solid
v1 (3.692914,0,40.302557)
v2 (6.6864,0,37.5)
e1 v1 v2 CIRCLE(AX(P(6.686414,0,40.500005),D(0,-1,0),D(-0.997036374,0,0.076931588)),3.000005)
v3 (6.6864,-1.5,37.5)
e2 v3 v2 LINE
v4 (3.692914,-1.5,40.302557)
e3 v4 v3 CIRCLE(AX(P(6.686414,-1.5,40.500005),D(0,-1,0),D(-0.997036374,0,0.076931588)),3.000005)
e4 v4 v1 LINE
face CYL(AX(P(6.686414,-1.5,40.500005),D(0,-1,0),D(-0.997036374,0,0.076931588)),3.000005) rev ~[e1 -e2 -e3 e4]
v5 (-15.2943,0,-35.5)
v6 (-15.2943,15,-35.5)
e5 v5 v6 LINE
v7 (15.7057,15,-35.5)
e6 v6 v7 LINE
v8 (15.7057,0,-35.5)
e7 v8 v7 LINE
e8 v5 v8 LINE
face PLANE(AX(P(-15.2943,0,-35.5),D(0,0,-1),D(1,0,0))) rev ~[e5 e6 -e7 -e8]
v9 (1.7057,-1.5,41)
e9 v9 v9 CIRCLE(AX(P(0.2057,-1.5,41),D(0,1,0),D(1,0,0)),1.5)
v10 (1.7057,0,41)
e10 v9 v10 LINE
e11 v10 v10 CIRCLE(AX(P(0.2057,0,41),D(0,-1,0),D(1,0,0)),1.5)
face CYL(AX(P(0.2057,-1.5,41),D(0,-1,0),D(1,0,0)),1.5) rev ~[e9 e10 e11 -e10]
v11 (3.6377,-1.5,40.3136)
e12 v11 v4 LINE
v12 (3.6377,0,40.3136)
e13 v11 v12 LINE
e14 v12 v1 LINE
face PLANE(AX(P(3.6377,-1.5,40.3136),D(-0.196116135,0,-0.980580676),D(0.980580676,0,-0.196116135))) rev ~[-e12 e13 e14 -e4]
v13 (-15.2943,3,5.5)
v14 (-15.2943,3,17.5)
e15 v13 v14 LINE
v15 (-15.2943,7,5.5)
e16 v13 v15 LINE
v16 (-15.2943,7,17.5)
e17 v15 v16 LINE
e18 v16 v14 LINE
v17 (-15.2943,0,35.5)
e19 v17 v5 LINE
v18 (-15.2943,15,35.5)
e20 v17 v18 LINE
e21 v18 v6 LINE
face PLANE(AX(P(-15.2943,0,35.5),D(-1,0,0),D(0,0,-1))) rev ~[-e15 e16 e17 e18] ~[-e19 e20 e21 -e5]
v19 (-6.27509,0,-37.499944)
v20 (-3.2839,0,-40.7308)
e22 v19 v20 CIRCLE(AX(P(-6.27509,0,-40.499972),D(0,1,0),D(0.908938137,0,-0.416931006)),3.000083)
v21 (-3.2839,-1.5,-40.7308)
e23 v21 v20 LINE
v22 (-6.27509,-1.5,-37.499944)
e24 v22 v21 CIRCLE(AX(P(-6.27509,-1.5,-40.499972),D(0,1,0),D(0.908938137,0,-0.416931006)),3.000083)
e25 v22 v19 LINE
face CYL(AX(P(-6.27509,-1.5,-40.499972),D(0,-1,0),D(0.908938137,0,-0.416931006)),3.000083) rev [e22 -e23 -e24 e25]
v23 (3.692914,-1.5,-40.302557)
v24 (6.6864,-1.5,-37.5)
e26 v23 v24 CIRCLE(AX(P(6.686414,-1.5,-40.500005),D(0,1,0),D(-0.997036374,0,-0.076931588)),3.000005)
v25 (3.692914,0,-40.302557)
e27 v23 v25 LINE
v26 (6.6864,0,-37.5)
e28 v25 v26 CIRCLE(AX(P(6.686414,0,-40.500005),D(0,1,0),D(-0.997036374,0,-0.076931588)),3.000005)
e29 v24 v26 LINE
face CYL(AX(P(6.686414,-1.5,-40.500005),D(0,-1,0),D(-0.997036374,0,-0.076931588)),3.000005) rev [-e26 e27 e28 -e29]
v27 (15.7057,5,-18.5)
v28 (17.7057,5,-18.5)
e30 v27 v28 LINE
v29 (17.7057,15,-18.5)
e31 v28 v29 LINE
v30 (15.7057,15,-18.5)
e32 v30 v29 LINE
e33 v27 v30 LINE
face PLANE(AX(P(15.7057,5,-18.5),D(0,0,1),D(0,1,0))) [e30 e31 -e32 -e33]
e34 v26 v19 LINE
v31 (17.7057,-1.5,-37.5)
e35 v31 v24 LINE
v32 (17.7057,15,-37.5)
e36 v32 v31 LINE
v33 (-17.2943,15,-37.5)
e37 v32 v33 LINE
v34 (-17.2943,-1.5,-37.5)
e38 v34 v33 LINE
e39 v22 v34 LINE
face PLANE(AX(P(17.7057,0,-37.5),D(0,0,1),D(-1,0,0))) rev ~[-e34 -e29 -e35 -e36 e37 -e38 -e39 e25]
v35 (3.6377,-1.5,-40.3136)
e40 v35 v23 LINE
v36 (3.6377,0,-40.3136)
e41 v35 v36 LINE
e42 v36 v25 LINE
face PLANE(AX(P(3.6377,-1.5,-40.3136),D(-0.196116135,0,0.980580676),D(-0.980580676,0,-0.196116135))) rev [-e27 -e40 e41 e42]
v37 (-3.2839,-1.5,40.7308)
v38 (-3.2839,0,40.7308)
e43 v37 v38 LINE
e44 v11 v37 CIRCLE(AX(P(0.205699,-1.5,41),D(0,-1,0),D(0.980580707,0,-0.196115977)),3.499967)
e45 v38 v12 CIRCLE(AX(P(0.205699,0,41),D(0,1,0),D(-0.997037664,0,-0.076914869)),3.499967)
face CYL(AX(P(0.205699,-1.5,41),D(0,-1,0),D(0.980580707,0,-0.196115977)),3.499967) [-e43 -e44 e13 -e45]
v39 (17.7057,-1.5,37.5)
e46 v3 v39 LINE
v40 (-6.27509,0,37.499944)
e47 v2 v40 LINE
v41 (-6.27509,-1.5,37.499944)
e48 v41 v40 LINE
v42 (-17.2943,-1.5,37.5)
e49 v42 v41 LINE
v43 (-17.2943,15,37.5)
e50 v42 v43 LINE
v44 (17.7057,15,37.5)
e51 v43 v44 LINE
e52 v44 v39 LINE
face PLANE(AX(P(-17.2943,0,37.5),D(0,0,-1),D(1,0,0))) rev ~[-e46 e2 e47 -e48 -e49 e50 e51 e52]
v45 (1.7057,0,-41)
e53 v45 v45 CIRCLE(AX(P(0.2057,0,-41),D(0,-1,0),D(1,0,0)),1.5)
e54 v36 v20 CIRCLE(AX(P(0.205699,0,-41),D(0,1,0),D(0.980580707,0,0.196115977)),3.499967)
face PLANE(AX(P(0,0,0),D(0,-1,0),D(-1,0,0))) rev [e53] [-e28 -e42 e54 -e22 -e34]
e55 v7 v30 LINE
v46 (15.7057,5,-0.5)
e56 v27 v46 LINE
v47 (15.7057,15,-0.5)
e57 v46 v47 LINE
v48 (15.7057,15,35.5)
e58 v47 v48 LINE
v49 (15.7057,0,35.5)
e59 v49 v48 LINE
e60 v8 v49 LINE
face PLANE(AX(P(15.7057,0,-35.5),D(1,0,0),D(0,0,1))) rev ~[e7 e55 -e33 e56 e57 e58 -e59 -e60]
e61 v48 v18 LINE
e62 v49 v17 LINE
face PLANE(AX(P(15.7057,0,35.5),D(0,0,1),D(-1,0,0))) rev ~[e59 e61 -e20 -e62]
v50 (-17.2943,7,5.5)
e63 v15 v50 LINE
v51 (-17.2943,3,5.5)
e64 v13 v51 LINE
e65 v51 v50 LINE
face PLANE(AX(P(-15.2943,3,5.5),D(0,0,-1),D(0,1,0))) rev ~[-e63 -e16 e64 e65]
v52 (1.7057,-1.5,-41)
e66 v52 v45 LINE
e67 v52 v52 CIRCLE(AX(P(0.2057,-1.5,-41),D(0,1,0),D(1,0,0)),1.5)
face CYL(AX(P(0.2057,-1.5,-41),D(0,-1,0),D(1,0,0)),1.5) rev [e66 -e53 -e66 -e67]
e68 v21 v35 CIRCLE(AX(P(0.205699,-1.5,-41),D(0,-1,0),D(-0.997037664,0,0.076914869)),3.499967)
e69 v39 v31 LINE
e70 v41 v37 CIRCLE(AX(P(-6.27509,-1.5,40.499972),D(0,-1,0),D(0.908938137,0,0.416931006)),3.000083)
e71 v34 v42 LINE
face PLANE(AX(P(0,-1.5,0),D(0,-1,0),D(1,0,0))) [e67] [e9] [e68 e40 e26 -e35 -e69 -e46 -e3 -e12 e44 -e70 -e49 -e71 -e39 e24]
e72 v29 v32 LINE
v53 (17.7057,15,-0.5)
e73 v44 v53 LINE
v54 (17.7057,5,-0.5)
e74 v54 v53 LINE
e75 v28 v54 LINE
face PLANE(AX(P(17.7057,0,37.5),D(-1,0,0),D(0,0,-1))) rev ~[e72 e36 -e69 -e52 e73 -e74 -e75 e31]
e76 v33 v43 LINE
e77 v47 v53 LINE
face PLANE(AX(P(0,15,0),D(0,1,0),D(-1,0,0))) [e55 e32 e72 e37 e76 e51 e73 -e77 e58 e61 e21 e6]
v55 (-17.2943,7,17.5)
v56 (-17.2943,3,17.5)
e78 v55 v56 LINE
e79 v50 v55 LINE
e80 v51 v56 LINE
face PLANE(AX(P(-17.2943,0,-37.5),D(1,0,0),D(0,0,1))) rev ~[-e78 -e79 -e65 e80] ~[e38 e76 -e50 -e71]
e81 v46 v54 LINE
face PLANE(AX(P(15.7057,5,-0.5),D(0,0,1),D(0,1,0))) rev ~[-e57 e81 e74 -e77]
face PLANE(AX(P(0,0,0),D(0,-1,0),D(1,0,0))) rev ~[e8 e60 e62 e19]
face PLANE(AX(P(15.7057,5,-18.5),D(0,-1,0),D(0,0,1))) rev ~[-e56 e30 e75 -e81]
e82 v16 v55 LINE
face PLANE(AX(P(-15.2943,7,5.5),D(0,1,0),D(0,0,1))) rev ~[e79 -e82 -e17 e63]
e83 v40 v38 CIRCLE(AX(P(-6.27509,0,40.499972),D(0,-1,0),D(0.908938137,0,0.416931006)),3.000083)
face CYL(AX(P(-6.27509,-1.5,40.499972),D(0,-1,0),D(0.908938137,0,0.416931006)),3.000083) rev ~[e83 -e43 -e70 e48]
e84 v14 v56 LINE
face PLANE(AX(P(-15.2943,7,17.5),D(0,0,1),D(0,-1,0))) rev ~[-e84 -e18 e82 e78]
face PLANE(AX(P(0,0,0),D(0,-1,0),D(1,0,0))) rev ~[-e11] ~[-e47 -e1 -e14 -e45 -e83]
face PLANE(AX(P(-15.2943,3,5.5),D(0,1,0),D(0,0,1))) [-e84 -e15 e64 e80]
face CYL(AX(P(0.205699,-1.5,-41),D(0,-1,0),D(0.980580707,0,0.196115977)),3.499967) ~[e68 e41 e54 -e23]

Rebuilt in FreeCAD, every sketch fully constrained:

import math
import FreeCAD as App
import Part
import Sketcher
Q = App.Units.Quantity

doc = App.newDocument("Part")
body = doc.addObject("PartDesign::Body", "Body")

# Sketch on XZ plane
sketch1 = body.newObject("Sketcher::SketchObject", "Sketch")
sketch1.AttachmentSupport = (doc.getObject("XZ_Plane"), [""])
sketch1.MapMode = "FlatFace"
sketch1.addGeometry([
    Part.LineSegment(App.Vector(18, -38, 0), App.Vector(-17, -38, 0)),  # 0
    Part.LineSegment(App.Vector(-17, -38, 0), App.Vector(-17, 38, 0)),  # 1
    Part.LineSegment(App.Vector(-17, 38, 0), App.Vector(18, 38, 0)),  # 2
    Part.LineSegment(App.Vector(18, 38, 0), App.Vector(18, -38, 0)),  # 3
    Part.LineSegment(App.Vector(16, 36, 0), App.Vector(-15, 36, 0)),  # 4
    Part.LineSegment(App.Vector(-15, 36, 0), App.Vector(-15, -36, 0)),  # 5
    Part.LineSegment(App.Vector(-15, -36, 0), App.Vector(16, -36, 0)),  # 6
    Part.LineSegment(App.Vector(16, -36, 0), App.Vector(16, 36, 0)),  # 7
], False)
sketch1.addConstraint([
    Sketcher.Constraint("Coincident", 0, 2, 1, 1),
    Sketcher.Constraint("Coincident", 1, 2, 2, 1),
    Sketcher.Constraint("Coincident", 2, 2, 3, 1),
    Sketcher.Constraint("Coincident", 3, 2, 0, 1),
    Sketcher.Constraint("Coincident", 4, 2, 5, 1),
    Sketcher.Constraint("Coincident", 5, 2, 6, 1),
    Sketcher.Constraint("Coincident", 6, 2, 7, 1),
    Sketcher.Constraint("Coincident", 7, 2, 4, 1),
    Sketcher.Constraint("Horizontal", 0),
    Sketcher.Constraint("Vertical", 1),
    Sketcher.Constraint("Horizontal", 2),
    Sketcher.Constraint("Vertical", 3),
    Sketcher.Constraint("Horizontal", 4),
    Sketcher.Constraint("Vertical", 5),
    Sketcher.Constraint("Horizontal", 6),
    Sketcher.Constraint("Vertical", 7),
    Sketcher.Constraint("DistanceX", 1, 2, 4, 2, 2.0),
    Sketcher.Constraint("DistanceY", 4, 2, 1, 2, 2.0),
    Sketcher.Constraint("DistanceY", 0, 2, 5, 2, 2.0),
    Sketcher.Constraint("DistanceX", 6, 2, 3, 2, 2.0),
    Sketcher.Constraint("DistanceX", 0, 2, 0, 1, 35.0),
    Sketcher.Constraint("DistanceY", 1, 1, 1, 2, 75.0),
    Sketcher.Constraint("DistanceY", 0, 2, -1, 1, 37.5),
    Sketcher.Constraint("DistanceX", 0, 2, -1, 1, 17.2943),
])
pad1 = body.newObject("PartDesign::Pad", "Pad")
pad1.Profile = sketch1
pad1.Length = 15
pad1.Reversed = True

# Sketch on XZ plane
sketch2 = body.newObject("Sketcher::SketchObject", "Sketch001")
sketch2.AttachmentSupport = (doc.getObject("XZ_Plane"), [""])
sketch2.MapMode = "FlatFace"
sketch2.addGeometry([
    Part.LineSegment(App.Vector(18, 38, 0), App.Vector(-17, 38, 0)),
    Part.LineSegment(App.Vector(-17, 38, 0), App.Vector(-17, -38, 0)),
    Part.LineSegment(App.Vector(-17, -38, 0), App.Vector(18, -38, 0)),
    Part.LineSegment(App.Vector(18, -38, 0), App.Vector(18, 38, 0)),
], False)
sketch2.addConstraint([
    Sketcher.Constraint("Coincident", 0, 2, 1, 1),
    Sketcher.Constraint("Coincident", 1, 2, 2, 1),
    Sketcher.Constraint("Coincident", 2, 2, 3, 1),
    Sketcher.Constraint("Coincident", 3, 2, 0, 1),
    Sketcher.Constraint("Horizontal", 0),
    Sketcher.Constraint("Vertical", 1),
    Sketcher.Constraint("Horizontal", 2),
    Sketcher.Constraint("Vertical", 3),
    Sketcher.Constraint("DistanceX", 0, 2, 0, 1, 35.0),
    Sketcher.Constraint("DistanceY", 1, 2, 1, 1, 75.0),
    Sketcher.Constraint("DistanceY", -1, 1, 0, 2, 37.5),
    Sketcher.Constraint("DistanceX", 0, 2, -1, 1, 17.2943),
])
pad2 = body.newObject("PartDesign::Pad", "Pad001")
pad2.Profile = sketch2
pad2.Length = 1.5

# Sketch on XZ plane
sketch3 = body.newObject("Sketcher::SketchObject", "Sketch002")
sketch3.AttachmentSupport = (doc.getObject("XZ_Plane"), [""])
sketch3.MapMode = "FlatFace"
sketch3.AttachmentOffset = App.Placement(App.Vector(0, 0, 1.5), App.Rotation())
sketch3.addGeometry([
    Part.ArcOfCircle(Part.Circle(App.Vector(-6.28, 40.5, 0), App.Vector(0, 0, 1), 3), math.radians(-90), math.radians(4)),  # 0
    Part.LineSegment(App.Vector(-6.28, 37.5, 0), App.Vector(6.69, 37.5, 0)),  # 1
    Part.ArcOfCircle(Part.Circle(App.Vector(6.69, 40.5, 0), App.Vector(0, 0, 1), 3), math.radians(-176), math.radians(-90)),  # 2
    Part.LineSegment(App.Vector(3.69, 40.3, 0), App.Vector(3.64, 40.31, 0)),  # 3
    Part.ArcOfCircle(Part.Circle(App.Vector(0.21, 41, 0), App.Vector(0, 0, 1), 3.5), math.radians(-11), math.radians(184)),  # 4
    Part.Circle(App.Vector(0.21, 41, 0), App.Vector(0, 0, 1), 1.5),  # 5
], False)
sketch3.addConstraint([
    Sketcher.Constraint("Tangent", 0, 1, 1, 1),
    Sketcher.Constraint("Tangent", 1, 2, 2, 2),
    Sketcher.Constraint("Coincident", 2, 1, 3, 1),
    Sketcher.Constraint("Coincident", 3, 2, 4, 1),
    Sketcher.Constraint("Tangent", 4, 2, 0, 2),
    Sketcher.Constraint("Horizontal", 1),
    Sketcher.Constraint("Coincident", 5, 3, 4, 3),
    Sketcher.Constraint("Equal", 0, 2),
    Sketcher.Constraint("Diameter", 5, 3.0),
    Sketcher.Constraint("Radius", 0, 3.0),
    Sketcher.Constraint("Radius", 4, 3.5),
    Sketcher.Constraint("DistanceY", -1, 1, 4, 3, 41.0),
    Sketcher.Constraint("DistanceY", -1, 1, 0, 3, 40.5),
    Sketcher.Constraint("Angle", 3, Q("168.69 deg")),
    Sketcher.Constraint("DistanceX", 1, 1, 1, 2, 12.9615),
    Sketcher.Constraint("DistanceX", 0, 3, -1, 1, 6.275),
    Sketcher.Constraint("DistanceX", -1, 1, 2, 1, 3.693),
])
pad3 = body.newObject("PartDesign::Pad", "Pad002")
pad3.Profile = sketch3
pad3.Length = 1.5
pad3.Reversed = True
doc.recompute()

mirrored = body.newObject("PartDesign::Mirrored", "Mirrored")
mirrored.Originals = [pad3]
mirrored.MirrorPlane = (doc.getObject("XY_Plane"), [""])
body.Tip = mirrored

# Sketch on YZ plane
sketch4 = body.newObject("Sketcher::SketchObject", "Sketch003")
sketch4.AttachmentSupport = (doc.getObject("YZ_Plane"), [""])
sketch4.MapMode = "FlatFace"
sketch4.AttachmentOffset = App.Placement(App.Vector(0, 0, -15.2943), App.Rotation())
sketch4.addGeometry([
    Part.LineSegment(App.Vector(3, 17.5, 0), App.Vector(3, 5.5, 0)),
    Part.LineSegment(App.Vector(3, 5.5, 0), App.Vector(7, 5.5, 0)),
    Part.LineSegment(App.Vector(7, 5.5, 0), App.Vector(7, 17.5, 0)),
    Part.LineSegment(App.Vector(7, 17.5, 0), App.Vector(3, 17.5, 0)),
], False)
sketch4.addConstraint([
    Sketcher.Constraint("Coincident", 0, 2, 1, 1),
    Sketcher.Constraint("Coincident", 1, 2, 2, 1),
    Sketcher.Constraint("Coincident", 2, 2, 3, 1),
    Sketcher.Constraint("Coincident", 3, 2, 0, 1),
    Sketcher.Constraint("Vertical", 0),
    Sketcher.Constraint("Horizontal", 1),
    Sketcher.Constraint("Vertical", 2),
    Sketcher.Constraint("Horizontal", 3),
    Sketcher.Constraint("DistanceY", 0, 2, 0, 1, 12.0),
    Sketcher.Constraint("DistanceX", -1, 1, 0, 2, 3.0),
    Sketcher.Constraint("DistanceX", 1, 1, 1, 2, 4.0),
    Sketcher.Constraint("DistanceY", -1, 1, 0, 2, 5.5),
])
pocket1 = body.newObject("PartDesign::Pocket", "Pocket")
pocket1.Profile = sketch4
pocket1.Length = 2

# Sketch on YZ plane
sketch5 = body.newObject("Sketcher::SketchObject", "Sketch004")
sketch5.AttachmentSupport = (doc.getObject("YZ_Plane"), [""])
sketch5.MapMode = "FlatFace"
sketch5.AttachmentOffset = App.Placement(App.Vector(0, 0, 15.7057), App.Rotation())
sketch5.addGeometry([
    Part.LineSegment(App.Vector(5, 0, 0), App.Vector(15, 0, 0)),
    Part.LineSegment(App.Vector(15, 0, 0), App.Vector(15, -18, 0)),
    Part.LineSegment(App.Vector(15, -18, 0), App.Vector(5, -18, 0)),
    Part.LineSegment(App.Vector(5, -18, 0), App.Vector(5, 0, 0)),
], False)
sketch5.addConstraint([
    Sketcher.Constraint("Coincident", 0, 2, 1, 1),
    Sketcher.Constraint("Coincident", 1, 2, 2, 1),
    Sketcher.Constraint("Coincident", 2, 2, 3, 1),
    Sketcher.Constraint("Coincident", 3, 2, 0, 1),
    Sketcher.Constraint("Horizontal", 0),
    Sketcher.Constraint("Vertical", 1),
    Sketcher.Constraint("Horizontal", 2),
    Sketcher.Constraint("Vertical", 3),
    Sketcher.Constraint("DistanceX", 0, 1, 0, 2, 10.0),
    Sketcher.Constraint("DistanceY", 1, 2, 1, 1, 18.0),
    Sketcher.Constraint("DistanceX", -1, 1, 2, 2, 5.0),
    Sketcher.Constraint("DistanceY", 0, 2, -1, 1, 0.5),
])
pocket2 = body.newObject("PartDesign::Pocket", "Pocket001")
pocket2.Profile = sketch5
pocket2.Length = 10
pocket2.Reversed = True

doc.recompute()
